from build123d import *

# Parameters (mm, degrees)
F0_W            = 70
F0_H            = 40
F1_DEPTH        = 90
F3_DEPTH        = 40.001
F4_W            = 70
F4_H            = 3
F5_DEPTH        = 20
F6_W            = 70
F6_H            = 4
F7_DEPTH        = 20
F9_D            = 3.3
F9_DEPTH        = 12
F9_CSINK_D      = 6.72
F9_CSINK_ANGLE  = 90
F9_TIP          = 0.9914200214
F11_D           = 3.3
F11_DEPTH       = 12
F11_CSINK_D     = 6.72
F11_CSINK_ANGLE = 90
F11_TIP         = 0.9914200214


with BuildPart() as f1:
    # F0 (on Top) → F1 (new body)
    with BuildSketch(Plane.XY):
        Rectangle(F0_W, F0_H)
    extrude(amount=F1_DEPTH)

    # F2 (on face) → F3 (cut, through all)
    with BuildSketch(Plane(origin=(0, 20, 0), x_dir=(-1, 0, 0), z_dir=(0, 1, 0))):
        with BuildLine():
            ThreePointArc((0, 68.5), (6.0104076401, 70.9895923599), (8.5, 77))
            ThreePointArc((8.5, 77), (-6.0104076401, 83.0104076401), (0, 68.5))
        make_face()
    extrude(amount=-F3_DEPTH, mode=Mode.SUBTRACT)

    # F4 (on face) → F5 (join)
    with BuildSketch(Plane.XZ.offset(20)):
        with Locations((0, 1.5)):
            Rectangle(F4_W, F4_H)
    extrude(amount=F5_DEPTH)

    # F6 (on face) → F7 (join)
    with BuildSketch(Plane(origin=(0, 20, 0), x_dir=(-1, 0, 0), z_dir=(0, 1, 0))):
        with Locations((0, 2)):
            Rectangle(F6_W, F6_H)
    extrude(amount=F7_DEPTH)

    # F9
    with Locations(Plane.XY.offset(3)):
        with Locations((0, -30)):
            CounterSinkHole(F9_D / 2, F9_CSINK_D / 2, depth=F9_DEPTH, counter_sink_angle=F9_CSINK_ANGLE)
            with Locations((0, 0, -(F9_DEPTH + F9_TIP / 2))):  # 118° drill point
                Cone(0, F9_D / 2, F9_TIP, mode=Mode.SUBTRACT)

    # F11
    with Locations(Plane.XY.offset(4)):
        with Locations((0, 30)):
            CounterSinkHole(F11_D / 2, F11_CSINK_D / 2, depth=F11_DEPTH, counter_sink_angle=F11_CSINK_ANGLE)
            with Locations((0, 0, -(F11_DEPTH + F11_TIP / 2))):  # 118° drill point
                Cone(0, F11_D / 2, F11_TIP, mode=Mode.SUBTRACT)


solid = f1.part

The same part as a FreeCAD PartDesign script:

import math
import FreeCAD as App
import Part
import Sketcher

V = App.Vector


def add_polygon(sketch, points):
    """Adds a closed chain of lines whose ends are joined by coincident constraints."""
    first, n = sketch.GeometryCount, len(points)
    for a, b in zip(points, points[1:] + points[:1]):
        sketch.addGeometry(Part.LineSegment(App.Vector(*a, 0), App.Vector(*b, 0)), False)
    for i in range(n):
        sketch.addConstraint(Sketcher.Constraint("Coincident", first + i, 2, first + (i + 1) % n, 1))

doc = App.newDocument("Part")
body = doc.addObject("PartDesign::Body", "Body")

# Sketch on XY plane
sketch1 = body.newObject("Sketcher::SketchObject", "Sketch")
sketch1.AttachmentSupport = (doc.getObject("XY_Plane"), [""])
sketch1.MapMode = "FlatFace"
add_polygon(sketch1, [(-35, 20), (-35, -20), (35, -20), (35, 20)])  # lines 0-3
sketch1.addConstraint(Sketcher.Constraint("Vertical", 0))
sketch1.addConstraint(Sketcher.Constraint("Horizontal", 1))
sketch1.addConstraint(Sketcher.Constraint("Vertical", 2))
sketch1.addConstraint(Sketcher.Constraint("Horizontal", 3))
sketch1.addConstraint(Sketcher.Constraint("Symmetric", 0, 2, 2, 2, -1, 1))
sketch1.addConstraint(Sketcher.Constraint("DistanceX", 1, 1, 1, 2, 70.0))
sketch1.addConstraint(Sketcher.Constraint("DistanceY", 0, 2, 0, 1, 40.0))
pad1 = body.newObject("PartDesign::Pad", "Pad")
pad1.Profile = sketch1
pad1.Length = 90

# Sketch on XZ plane
sketch2 = body.newObject("Sketcher::SketchObject", "Sketch001")
sketch2.AttachmentSupport = (doc.getObject("XZ_Plane"), [""])
sketch2.MapMode = "FlatFace"
sketch2.AttachmentOffset = App.Placement(V(0, 0, -20), App.Rotation())
sketch2.addGeometry(Part.ArcOfCircle(Part.Circle(V(0, 77, 0), V(0, 0, 1), 8), math.radians(180), math.radians(270)), False)
sketch2.addGeometry(Part.ArcOfCircle(Part.Circle(V(0, 77, 0), V(0, 0, 1), 8), math.radians(-90), math.radians(180)), False)
sketch2.addConstraint(Sketcher.Constraint("Tangent", 0, 1, 1, 2))
sketch2.addConstraint(Sketcher.Constraint("Coincident", 1, 1, 0, 2))
sketch2.addConstraint(Sketcher.Constraint("PointOnObject", 0, 3, -2))
sketch2.addConstraint(Sketcher.Constraint("PointOnObject", 1, 1, -2))
sketch2.addConstraint(Sketcher.Constraint("Horizontal", 1, 3, 0, 1))
sketch2.addConstraint(Sketcher.Constraint("Radius", 0, 8.5))
sketch2.addConstraint(Sketcher.Constraint("DistanceY", -1, 1, 0, 3, 77.0))
pocket1 = body.newObject("PartDesign::Pocket", "Pocket")
pocket1.Profile = sketch2
pocket1.Type = "ThroughAll"
pocket1.Reversed = True

# Sketch on XZ plane
sketch3 = body.newObject("Sketcher::SketchObject", "Sketch002")
sketch3.AttachmentSupport = (doc.getObject("XZ_Plane"), [""])
sketch3.MapMode = "FlatFace"
sketch3.AttachmentOffset = App.Placement(V(0, 0, 20), App.Rotation())
add_polygon(sketch3, [(-35, 3), (-35, 0), (35, 0), (35, 3)])  # lines 0-3
sketch3.addConstraint(Sketcher.Constraint("Vertical", 0))
sketch3.addConstraint(Sketcher.Constraint("Horizontal", 1))
sketch3.addConstraint(Sketcher.Constraint("Vertical", 2))
sketch3.addConstraint(Sketcher.Constraint("Horizontal", 3))
sketch3.addConstraint(Sketcher.Constraint("Symmetric", 0, 2, 1, 2, -1, 1))
sketch3.addConstraint(Sketcher.Constraint("DistanceX", 1, 1, 1, 2, 70.0))
sketch3.addConstraint(Sketcher.Constraint("DistanceY", 0, 2, 0, 1, 3.0))
pad2 = body.newObject("PartDesign::Pad", "Pad001")
pad2.Profile = sketch3
pad2.Length = 20

# Sketch on XZ plane
sketch4 = body.newObject("Sketcher::SketchObject", "Sketch003")
sketch4.AttachmentSupport = (doc.getObject("XZ_Plane"), [""])
sketch4.MapMode = "FlatFace"
sketch4.AttachmentOffset = App.Placement(V(0, 0, -20), App.Rotation())
add_polygon(sketch4, [(35, 4), (35, 0), (-35, 0), (-35, 4)])  # lines 0-3
sketch4.addConstraint(Sketcher.Constraint("Vertical", 0))
sketch4.addConstraint(Sketcher.Constraint("Horizontal", 1))
sketch4.addConstraint(Sketcher.Constraint("Vertical", 2))
sketch4.addConstraint(Sketcher.Constraint("Horizontal", 3))
sketch4.addConstraint(Sketcher.Constraint("Symmetric", 0, 2, 1, 2, -1, 1))
sketch4.addConstraint(Sketcher.Constraint("DistanceX", 1, 2, 1, 1, 70.0))
sketch4.addConstraint(Sketcher.Constraint("DistanceY", 0, 2, 0, 1, 4.0))
pad3 = body.newObject("PartDesign::Pad", "Pad002")
pad3.Profile = sketch4
pad3.Length = 20
pad3.Reversed = True

# Sketch on XY plane
sketch5 = body.newObject("Sketcher::SketchObject", "Sketch004")
sketch5.AttachmentSupport = (doc.getObject("XY_Plane"), [""])
sketch5.MapMode = "FlatFace"
sketch5.AttachmentOffset = App.Placement(V(0, 0, 3), App.Rotation())
sketch5.addGeometry(Part.Circle(V(0, -30, 0), V(0, 0, 1), 1.6), False)
sketch5.addConstraint(Sketcher.Constraint("PointOnObject", 0, 3, -2))
sketch5.addConstraint(Sketcher.Constraint("Diameter", 0, 3.3))
sketch5.addConstraint(Sketcher.Constraint("DistanceY", 0, 3, -1, 1, 30.0))
doc.recompute()
hole = body.newObject("PartDesign::Hole", "Hole")
hole.Profile = sketch5
hole.ThreadType = "None"
hole.Diameter = 3.3
hole.DepthType = "Dimension"
hole.Depth = 12
hole.DrillPoint = "Angled"
hole.DrillPointAngle = 118
hole.HoleCutType = "Countersink"
hole.HoleCutDiameter = 6.72
hole.HoleCutCountersinkAngle = 90

# Sketch on XY plane
sketch6 = body.newObject("Sketcher::SketchObject", "Sketch005")
sketch6.AttachmentSupport = (doc.getObject("XY_Plane"), [""])
sketch6.MapMode = "FlatFace"
sketch6.AttachmentOffset = App.Placement(V(0, 0, 4), App.Rotation())
sketch6.addGeometry(Part.Circle(V(0, 30, 0), V(0, 0, 1), 1.6), False)
sketch6.addConstraint(Sketcher.Constraint("PointOnObject", 0, 3, -2))
sketch6.addConstraint(Sketcher.Constraint("Diameter", 0, 3.3))
sketch6.addConstraint(Sketcher.Constraint("DistanceY", -1, 1, 0, 3, 30.0))
doc.recompute()
hole2 = body.newObject("PartDesign::Hole", "Hole001")
hole2.Profile = sketch6
hole2.ThreadType = "None"
hole2.Diameter = 3.3
hole2.DepthType = "Dimension"
hole2.Depth = 12
hole2.DrillPoint = "Angled"
hole2.DrillPointAngle = 118
hole2.HoleCutType = "Countersink"
hole2.HoleCutDiameter = 6.72
hole2.HoleCutCountersinkAngle = 90

doc.recompute()
